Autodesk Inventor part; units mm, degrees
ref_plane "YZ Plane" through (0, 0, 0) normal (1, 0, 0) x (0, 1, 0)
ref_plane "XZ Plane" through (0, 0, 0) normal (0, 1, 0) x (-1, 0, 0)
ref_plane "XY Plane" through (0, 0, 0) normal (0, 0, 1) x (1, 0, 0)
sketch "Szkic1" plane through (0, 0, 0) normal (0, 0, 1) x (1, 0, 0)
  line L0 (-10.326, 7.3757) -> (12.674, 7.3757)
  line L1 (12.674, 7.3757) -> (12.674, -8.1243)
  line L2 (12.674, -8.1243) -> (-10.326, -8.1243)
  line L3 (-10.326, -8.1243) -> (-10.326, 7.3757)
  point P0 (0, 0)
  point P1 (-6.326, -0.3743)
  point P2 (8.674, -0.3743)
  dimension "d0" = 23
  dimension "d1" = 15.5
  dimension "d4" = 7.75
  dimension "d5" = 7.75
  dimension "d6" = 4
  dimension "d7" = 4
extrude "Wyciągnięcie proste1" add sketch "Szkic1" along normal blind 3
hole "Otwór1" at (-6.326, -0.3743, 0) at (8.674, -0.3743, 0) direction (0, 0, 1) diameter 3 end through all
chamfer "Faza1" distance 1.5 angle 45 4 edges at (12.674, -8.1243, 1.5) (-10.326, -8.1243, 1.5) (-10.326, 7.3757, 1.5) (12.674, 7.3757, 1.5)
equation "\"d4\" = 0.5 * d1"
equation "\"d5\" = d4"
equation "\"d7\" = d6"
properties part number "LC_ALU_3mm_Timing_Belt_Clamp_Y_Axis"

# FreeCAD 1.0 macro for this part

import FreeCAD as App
import Part
import Sketcher
from FreeCAD import Vector
Q = App.Units.Quantity


def edges_at(feature, points):
    """Names of the edges that pass closest to the given points."""
    edges = feature.Shape.Edges
    near = lambda p: min(range(len(edges)), key=lambda i: edges[i].distToShape(Part.Vertex(*p))[0])
    return sorted({f"Edge{near(p) + 1}" for p in points})


def add_polygon(sketch, points):
    """Adds a closed chain of lines whose ends are joined by coincident constraints."""
    first, n = sketch.GeometryCount, len(points)
    for a, b in zip(points, points[1:] + points[:1]):
        sketch.addGeometry(Part.LineSegment(App.Vector(*a, 0), App.Vector(*b, 0)), False)
    for i in range(n):
        sketch.addConstraint(Sketcher.Constraint("Coincident", first + i, 2, first + (i + 1) % n, 1))

doc = App.newDocument("Part")
body = doc.addObject("PartDesign::Body", "Body")

sketch1 = body.newObject("Sketcher::SketchObject", "Sketch")
sketch1.AttachmentSupport = (doc.getObject("XY_Plane"), [""])
sketch1.MapMode = "FlatFace"
add_polygon(sketch1, [(13, 7), (-10, 7), (-10, -8), (13, -8)])
sketch1.addConstraint([
    Sketcher.Constraint("Horizontal", 0),
    Sketcher.Constraint("Vertical", 1),
    Sketcher.Constraint("Horizontal", 2),
    Sketcher.Constraint("Vertical", 3),
    Sketcher.Constraint("DistanceX", 0, 2, 0, 1, Q("23 mm")),
    Sketcher.Constraint("DistanceY", 1, 2, 1, 1, Q("15.5 mm")),
    Sketcher.Constraint("DistanceX", 0, 2, -1, 1, Q("10.326 mm")),
    Sketcher.Constraint("DistanceY", -1, 1, 0, 2, Q("7.3757 mm")),
])
pad1 = body.newObject("PartDesign::Pad", "Pad")
pad1.Profile = sketch1
pad1.Length = 3

sketch2 = body.newObject("Sketcher::SketchObject", "Sketch001")
sketch2.AttachmentSupport = (doc.getObject("XY_Plane"), [""])
sketch2.MapMode = "FlatFace"
sketch2.addGeometry([
    Part.Circle(Vector(-6.3, -0.4, 0), Vector(0, 0, 1), 1.5),
    Part.Circle(Vector(8.7, -0.4, 0), Vector(0, 0, 1), 1.5),
], False)
sketch2.addConstraint([
    Sketcher.Constraint("Equal", 0, 1),
    Sketcher.Constraint("Horizontal", 0, 3, 1, 3),
    Sketcher.Constraint("Diameter", 0, Q("3 mm")),
    Sketcher.Constraint("DistanceX", 0, 3, 1, 3, Q("15 mm")),
    Sketcher.Constraint("DistanceX", 0, 3, -1, 1, Q("6.326 mm")),
    Sketcher.Constraint("DistanceY", 0, 3, -1, 1, Q("0.3743 mm")),
])
doc.recompute()
hole = body.newObject("PartDesign::Hole", "Hole")
hole.Profile = sketch2
hole.ThreadType = "None"
hole.Diameter = 3
hole.DepthType = "ThroughAll"
hole.Reversed = True
doc.recompute()

chamfer = body.newObject("PartDesign::Chamfer", "Chamfer")
chamfer.Base = (hole, edges_at(hole, [
    (12.674, -8.124, 1.5),
    (-10.326, -8.124, 1.5),
    (-10.326, 7.376, 1.5),
    (12.674, 7.376, 1.5),
]))
chamfer.Size = 1.5

doc.recompute()
